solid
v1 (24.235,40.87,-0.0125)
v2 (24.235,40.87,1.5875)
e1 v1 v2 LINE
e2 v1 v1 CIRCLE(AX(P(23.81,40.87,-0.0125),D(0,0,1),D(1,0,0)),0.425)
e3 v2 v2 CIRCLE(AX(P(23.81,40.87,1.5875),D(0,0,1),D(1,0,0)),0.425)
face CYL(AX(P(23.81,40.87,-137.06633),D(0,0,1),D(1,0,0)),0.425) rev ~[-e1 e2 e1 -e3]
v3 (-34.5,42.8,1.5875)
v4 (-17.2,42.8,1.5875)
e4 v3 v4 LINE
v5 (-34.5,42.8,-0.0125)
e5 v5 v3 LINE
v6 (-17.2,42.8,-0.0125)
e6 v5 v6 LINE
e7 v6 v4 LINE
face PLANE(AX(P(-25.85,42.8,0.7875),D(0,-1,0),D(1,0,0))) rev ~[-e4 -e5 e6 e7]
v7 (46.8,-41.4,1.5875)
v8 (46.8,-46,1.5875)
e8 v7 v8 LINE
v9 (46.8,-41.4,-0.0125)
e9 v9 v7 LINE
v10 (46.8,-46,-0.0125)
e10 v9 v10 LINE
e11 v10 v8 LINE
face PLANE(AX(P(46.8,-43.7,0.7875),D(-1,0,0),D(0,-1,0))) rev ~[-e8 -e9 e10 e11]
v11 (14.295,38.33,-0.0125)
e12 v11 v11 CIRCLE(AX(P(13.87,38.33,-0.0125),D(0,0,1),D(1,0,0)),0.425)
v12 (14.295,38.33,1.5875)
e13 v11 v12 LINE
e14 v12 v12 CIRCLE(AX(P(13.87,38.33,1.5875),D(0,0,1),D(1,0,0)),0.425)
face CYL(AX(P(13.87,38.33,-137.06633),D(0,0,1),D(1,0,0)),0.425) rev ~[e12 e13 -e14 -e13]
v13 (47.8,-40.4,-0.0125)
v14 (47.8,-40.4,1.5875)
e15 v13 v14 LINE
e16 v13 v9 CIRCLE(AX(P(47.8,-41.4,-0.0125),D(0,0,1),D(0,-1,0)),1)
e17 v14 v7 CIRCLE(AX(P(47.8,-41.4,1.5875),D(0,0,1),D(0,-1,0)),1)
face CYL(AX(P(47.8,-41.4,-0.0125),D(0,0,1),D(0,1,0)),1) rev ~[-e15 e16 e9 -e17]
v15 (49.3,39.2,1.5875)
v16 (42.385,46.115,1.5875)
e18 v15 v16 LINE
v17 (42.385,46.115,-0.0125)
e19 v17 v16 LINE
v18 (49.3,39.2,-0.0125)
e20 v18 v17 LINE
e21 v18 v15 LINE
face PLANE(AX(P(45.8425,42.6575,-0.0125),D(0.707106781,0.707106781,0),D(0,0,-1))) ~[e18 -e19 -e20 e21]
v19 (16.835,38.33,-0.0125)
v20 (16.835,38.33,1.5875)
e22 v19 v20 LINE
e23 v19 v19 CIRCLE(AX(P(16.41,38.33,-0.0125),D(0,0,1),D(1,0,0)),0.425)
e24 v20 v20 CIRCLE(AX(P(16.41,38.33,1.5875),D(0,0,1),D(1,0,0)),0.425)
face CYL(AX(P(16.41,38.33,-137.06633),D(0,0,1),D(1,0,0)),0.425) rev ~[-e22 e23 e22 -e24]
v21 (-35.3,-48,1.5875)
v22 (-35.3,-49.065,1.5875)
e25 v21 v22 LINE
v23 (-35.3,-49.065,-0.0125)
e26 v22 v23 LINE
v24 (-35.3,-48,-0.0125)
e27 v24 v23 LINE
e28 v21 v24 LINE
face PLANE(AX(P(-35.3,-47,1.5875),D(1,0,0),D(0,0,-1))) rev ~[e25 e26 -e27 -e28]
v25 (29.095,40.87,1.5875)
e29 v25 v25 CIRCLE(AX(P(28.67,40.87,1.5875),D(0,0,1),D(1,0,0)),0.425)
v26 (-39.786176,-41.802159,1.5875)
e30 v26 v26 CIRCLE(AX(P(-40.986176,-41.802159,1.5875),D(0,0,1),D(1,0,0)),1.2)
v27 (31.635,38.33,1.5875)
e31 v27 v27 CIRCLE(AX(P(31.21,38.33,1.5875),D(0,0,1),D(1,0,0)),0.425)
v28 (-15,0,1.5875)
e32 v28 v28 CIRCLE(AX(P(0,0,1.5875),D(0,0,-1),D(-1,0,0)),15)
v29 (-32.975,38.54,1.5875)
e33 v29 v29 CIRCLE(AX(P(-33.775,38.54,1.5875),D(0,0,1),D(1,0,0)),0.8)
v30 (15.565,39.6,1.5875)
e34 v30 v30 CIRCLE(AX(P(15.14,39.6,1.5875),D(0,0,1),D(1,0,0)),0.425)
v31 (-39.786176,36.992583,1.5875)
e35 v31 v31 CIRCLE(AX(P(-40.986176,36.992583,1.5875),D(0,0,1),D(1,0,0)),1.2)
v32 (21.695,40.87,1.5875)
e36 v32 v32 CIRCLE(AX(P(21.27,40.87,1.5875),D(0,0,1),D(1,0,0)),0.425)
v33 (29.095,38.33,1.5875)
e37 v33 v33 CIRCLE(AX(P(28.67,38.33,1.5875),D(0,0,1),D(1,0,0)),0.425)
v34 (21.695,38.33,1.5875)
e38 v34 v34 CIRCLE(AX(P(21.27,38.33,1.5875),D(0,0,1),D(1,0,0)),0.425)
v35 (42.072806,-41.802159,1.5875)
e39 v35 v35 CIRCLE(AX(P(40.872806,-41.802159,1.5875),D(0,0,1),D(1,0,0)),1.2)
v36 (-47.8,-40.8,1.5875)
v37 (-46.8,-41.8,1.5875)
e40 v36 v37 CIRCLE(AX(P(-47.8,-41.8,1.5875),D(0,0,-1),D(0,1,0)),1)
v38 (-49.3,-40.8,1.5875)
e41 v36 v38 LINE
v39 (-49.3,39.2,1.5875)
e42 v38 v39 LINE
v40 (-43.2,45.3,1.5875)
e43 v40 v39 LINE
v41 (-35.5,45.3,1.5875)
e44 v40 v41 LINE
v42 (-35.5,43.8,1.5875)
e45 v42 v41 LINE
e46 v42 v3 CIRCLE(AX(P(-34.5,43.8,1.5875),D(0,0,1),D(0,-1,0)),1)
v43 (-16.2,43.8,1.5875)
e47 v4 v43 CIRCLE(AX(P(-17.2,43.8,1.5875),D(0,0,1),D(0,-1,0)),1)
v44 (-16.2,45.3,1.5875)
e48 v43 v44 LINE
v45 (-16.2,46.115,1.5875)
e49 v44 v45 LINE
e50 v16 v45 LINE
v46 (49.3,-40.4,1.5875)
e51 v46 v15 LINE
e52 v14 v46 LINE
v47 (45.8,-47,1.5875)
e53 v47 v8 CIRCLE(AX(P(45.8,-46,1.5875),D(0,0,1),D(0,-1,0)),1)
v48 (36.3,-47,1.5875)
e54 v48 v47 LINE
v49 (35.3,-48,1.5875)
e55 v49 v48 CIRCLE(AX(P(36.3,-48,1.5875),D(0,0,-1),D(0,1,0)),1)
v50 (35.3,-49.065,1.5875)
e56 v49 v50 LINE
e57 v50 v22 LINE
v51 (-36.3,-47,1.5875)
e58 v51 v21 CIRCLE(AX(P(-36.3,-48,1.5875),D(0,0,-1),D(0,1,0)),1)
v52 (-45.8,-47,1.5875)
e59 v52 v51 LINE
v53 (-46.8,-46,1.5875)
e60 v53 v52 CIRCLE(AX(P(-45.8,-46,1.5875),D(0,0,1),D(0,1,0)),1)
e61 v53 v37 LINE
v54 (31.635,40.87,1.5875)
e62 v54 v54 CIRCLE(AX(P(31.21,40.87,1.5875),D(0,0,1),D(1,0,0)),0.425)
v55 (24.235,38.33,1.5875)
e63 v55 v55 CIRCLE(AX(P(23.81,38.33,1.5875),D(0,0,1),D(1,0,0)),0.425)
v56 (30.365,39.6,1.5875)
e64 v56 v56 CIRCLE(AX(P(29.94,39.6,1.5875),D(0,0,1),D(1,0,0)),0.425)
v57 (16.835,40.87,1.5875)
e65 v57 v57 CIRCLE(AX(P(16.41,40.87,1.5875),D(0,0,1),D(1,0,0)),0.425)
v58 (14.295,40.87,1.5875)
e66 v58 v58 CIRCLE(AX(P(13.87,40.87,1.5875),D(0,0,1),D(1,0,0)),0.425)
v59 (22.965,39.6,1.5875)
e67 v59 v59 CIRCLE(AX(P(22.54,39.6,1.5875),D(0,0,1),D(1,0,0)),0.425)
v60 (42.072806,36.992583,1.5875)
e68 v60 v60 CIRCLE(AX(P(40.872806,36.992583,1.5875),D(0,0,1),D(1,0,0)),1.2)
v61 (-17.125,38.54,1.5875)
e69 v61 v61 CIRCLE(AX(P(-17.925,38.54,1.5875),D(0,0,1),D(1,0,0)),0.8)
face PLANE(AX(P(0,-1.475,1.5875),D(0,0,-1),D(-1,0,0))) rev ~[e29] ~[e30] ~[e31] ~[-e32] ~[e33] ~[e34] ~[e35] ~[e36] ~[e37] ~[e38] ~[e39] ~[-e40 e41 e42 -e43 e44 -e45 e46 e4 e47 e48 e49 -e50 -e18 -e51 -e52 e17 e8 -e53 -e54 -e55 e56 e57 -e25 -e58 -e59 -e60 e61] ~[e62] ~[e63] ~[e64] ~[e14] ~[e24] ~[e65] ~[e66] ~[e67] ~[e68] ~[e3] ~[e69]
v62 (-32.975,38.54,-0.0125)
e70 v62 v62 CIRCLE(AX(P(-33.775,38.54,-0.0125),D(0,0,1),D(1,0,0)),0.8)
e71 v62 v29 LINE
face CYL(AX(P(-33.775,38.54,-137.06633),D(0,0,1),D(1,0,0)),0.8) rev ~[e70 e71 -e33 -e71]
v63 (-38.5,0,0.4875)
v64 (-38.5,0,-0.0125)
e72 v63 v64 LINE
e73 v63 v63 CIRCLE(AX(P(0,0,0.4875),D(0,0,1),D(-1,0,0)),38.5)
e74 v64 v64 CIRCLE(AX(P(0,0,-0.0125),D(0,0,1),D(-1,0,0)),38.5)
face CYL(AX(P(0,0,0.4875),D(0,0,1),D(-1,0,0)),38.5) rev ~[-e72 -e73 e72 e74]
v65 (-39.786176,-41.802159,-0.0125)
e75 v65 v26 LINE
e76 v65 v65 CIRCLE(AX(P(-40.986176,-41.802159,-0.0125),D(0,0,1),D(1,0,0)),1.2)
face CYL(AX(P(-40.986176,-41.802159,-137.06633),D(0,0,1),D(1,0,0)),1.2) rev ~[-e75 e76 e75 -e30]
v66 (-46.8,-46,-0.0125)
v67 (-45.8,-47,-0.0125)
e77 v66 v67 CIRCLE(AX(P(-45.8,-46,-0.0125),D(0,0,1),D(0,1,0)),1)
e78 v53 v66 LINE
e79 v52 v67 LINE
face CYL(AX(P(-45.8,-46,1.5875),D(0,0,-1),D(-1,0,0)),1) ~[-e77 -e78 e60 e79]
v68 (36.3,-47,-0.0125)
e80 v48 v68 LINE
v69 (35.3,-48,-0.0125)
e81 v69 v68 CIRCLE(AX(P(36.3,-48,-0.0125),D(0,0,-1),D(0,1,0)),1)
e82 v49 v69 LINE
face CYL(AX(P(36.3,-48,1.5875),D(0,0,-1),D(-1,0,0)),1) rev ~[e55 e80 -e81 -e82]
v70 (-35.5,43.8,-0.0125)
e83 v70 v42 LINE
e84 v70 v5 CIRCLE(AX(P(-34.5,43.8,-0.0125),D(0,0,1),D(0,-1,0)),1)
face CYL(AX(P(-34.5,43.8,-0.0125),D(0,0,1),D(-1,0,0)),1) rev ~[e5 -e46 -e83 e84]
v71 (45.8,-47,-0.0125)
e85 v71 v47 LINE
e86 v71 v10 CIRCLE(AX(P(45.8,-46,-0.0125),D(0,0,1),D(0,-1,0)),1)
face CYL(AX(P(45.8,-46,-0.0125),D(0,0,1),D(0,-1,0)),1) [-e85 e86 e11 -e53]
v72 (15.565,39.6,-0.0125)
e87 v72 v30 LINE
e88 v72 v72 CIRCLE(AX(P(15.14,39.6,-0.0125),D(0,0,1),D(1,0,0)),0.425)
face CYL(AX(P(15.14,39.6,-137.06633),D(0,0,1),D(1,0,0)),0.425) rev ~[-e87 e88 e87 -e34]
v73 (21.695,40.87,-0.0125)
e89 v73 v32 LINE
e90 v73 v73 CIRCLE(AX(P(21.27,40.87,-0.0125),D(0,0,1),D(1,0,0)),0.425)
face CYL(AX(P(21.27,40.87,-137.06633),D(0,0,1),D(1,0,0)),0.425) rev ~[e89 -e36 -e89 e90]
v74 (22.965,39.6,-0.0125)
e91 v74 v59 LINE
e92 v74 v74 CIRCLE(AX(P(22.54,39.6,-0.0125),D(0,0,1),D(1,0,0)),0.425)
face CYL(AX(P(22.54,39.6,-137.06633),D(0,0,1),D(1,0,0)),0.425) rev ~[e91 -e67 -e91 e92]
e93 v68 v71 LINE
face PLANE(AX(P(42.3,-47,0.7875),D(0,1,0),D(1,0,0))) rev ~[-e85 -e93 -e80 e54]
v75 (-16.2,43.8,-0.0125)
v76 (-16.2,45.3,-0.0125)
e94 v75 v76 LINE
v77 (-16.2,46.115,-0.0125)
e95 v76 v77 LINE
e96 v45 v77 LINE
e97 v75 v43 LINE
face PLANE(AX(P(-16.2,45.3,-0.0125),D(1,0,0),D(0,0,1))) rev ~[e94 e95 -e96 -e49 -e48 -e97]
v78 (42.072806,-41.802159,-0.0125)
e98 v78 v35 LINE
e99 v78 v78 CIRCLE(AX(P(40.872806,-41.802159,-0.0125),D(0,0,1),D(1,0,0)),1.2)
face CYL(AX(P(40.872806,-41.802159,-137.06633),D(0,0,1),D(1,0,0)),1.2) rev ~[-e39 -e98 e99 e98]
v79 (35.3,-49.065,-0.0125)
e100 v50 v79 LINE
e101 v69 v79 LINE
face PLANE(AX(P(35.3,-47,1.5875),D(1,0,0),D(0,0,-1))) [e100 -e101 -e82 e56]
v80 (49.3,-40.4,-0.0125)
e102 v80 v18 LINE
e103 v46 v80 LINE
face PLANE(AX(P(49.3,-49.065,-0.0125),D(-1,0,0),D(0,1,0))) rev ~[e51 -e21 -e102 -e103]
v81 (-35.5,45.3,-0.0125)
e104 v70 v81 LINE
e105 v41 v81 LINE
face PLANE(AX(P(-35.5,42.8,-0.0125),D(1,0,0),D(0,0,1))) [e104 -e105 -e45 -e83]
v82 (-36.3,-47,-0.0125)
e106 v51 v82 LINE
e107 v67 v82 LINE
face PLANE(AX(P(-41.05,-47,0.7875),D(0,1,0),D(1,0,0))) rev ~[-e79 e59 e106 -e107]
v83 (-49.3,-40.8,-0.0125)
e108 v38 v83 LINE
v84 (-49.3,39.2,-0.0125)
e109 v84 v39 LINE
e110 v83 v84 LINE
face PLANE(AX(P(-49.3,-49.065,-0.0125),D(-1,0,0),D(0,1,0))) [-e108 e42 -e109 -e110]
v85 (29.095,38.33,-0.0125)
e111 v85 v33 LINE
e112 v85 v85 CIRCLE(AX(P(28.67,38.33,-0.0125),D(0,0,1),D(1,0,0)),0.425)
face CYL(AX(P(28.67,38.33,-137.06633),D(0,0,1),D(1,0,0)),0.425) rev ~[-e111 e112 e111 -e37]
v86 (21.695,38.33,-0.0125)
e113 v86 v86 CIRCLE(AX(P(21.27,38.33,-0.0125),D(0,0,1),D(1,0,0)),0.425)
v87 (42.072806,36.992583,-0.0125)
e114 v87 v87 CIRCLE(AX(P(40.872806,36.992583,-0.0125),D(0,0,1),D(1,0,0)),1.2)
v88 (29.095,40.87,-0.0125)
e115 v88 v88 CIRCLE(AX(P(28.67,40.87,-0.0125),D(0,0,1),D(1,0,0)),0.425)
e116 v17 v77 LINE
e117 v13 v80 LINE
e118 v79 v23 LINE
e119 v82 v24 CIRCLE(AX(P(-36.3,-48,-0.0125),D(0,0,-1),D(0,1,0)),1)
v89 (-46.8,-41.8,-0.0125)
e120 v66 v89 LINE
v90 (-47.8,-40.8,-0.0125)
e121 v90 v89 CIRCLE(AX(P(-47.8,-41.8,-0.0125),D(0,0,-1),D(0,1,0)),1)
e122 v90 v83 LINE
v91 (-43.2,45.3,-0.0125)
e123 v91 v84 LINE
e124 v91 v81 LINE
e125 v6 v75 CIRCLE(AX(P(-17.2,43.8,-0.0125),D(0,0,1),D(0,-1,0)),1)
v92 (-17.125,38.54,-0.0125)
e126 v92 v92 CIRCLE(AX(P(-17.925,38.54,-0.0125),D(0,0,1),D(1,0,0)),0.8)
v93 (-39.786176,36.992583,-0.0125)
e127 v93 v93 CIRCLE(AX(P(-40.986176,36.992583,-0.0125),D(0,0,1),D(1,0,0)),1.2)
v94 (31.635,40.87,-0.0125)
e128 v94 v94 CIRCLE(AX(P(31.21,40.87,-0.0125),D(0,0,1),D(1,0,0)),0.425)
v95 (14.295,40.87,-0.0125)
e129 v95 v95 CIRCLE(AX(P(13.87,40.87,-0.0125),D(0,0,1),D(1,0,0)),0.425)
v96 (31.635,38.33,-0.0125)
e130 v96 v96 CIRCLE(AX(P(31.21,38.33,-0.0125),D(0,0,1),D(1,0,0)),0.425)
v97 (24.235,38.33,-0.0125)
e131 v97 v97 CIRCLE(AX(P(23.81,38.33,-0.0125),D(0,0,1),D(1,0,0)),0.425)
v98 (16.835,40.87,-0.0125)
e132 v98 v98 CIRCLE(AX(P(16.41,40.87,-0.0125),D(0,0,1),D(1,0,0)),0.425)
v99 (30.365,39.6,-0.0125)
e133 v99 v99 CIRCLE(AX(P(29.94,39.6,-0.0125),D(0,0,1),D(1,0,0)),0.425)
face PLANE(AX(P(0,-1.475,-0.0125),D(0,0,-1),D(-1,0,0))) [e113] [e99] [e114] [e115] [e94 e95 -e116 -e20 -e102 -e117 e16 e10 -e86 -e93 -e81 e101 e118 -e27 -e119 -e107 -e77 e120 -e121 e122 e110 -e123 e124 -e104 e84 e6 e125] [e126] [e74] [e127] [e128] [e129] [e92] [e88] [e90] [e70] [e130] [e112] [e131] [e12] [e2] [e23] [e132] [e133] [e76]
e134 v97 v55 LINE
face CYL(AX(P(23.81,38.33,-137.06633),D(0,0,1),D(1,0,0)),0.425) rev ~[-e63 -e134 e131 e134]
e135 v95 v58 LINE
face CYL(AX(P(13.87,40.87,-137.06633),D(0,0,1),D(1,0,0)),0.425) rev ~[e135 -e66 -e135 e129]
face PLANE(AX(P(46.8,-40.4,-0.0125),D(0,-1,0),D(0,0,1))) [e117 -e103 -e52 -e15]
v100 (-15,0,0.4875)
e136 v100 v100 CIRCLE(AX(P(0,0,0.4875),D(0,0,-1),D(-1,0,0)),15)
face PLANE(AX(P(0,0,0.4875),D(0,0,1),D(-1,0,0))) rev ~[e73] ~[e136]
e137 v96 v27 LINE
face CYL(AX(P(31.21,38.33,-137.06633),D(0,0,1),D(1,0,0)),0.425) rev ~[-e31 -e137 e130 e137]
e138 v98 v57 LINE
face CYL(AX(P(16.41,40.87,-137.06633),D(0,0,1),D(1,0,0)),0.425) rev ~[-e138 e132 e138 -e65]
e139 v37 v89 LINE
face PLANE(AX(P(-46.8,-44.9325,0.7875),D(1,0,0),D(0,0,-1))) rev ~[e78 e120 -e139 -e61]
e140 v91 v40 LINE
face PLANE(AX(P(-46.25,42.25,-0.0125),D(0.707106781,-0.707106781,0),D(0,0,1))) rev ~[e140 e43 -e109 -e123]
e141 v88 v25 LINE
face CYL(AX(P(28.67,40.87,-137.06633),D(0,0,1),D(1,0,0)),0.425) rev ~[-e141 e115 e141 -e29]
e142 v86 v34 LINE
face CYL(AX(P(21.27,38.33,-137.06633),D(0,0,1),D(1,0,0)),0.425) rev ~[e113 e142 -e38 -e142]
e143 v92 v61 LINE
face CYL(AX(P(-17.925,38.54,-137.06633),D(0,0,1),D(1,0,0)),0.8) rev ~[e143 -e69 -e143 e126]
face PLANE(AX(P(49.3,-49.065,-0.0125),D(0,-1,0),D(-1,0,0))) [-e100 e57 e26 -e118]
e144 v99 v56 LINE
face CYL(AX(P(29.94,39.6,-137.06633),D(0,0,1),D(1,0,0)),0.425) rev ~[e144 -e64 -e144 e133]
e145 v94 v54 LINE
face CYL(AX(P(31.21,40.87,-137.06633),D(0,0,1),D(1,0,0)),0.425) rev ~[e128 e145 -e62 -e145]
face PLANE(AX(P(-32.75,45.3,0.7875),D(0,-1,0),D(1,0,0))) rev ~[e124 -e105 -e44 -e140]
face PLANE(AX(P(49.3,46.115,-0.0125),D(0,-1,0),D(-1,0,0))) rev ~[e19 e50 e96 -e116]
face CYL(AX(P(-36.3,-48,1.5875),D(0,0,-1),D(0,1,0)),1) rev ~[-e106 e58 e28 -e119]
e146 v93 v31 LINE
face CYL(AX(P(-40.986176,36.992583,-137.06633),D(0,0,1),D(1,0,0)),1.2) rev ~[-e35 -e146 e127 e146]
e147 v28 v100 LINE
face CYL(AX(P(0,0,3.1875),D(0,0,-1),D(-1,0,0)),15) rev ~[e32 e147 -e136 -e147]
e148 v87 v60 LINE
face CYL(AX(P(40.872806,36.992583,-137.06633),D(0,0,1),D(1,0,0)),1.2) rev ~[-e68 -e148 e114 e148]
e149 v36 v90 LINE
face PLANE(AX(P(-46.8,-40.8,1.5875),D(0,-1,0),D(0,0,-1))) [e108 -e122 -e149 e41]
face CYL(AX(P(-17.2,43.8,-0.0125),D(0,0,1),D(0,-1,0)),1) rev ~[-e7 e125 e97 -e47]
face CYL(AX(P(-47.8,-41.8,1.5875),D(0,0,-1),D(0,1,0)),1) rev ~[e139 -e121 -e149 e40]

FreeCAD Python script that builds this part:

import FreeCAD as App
import Part
import Sketcher
from FreeCAD import Vector
Q = App.Units.Quantity


def edges_at(feature, points):
    """Names of the edges that pass closest to the given points."""
    edges = feature.Shape.Edges
    near = lambda p: min(range(len(edges)), key=lambda i: edges[i].distToShape(Part.Vertex(*p))[0])
    return sorted({f"Edge{near(p) + 1}" for p in points})

doc = App.newDocument("Part")
body = doc.addObject("PartDesign::Body", "Body")

# Sketch on XY plane
sketch1 = body.newObject("Sketcher::SketchObject", "Sketch")
sketch1.AttachmentSupport = (doc.getObject("XY_Plane"), [""])
sketch1.MapMode = "FlatFace"
sketch1.AttachmentOffset = App.Placement(Vector(0, 0, -0.0125), App.Rotation())
sketch1.addGeometry([
    Part.LineSegment(Vector(49, 46, 0), Vector(49, -49, 0)),
    Part.LineSegment(Vector(49, -49, 0), Vector(-49, -49, 0)),
    Part.LineSegment(Vector(-49, -49, 0), Vector(-49, 46, 0)),
    Part.LineSegment(Vector(-49, 46, 0), Vector(49, 46, 0)),
], False)
sketch1.addConstraint([
    Sketcher.Constraint("Coincident", 0, 2, 1, 1),
    Sketcher.Constraint("Coincident", 1, 2, 2, 1),
    Sketcher.Constraint("Coincident", 2, 2, 3, 1),
    Sketcher.Constraint("Coincident", 3, 2, 0, 1),
    Sketcher.Constraint("Vertical", 0),
    Sketcher.Constraint("Horizontal", 1),
    Sketcher.Constraint("Vertical", 2),
    Sketcher.Constraint("Horizontal", 3),
    Sketcher.Constraint("DistanceX", 1, 2, 1, 1, Q("98.6 mm")),
    Sketcher.Constraint("DistanceY", 0, 2, 0, 1, Q("95.18 mm")),
    Sketcher.Constraint("DistanceX", -1, 1, 0, 2, Q("49.3 mm")),
    Sketcher.Constraint("DistanceY", 0, 2, -1, 1, Q("49.065 mm")),
])
pad1 = body.newObject("PartDesign::Pad", "Pad")
pad1.Profile = sketch1
pad1.Length = 1.6

# Sketch on XY plane
sketch2 = body.newObject("Sketcher::SketchObject", "Sketch001")
sketch2.AttachmentSupport = (doc.getObject("XY_Plane"), [""])
sketch2.MapMode = "FlatFace"
sketch2.AttachmentOffset = App.Placement(Vector(0, 0, -0.0125), App.Rotation())
sketch2.addGeometry(Part.Circle(Vector(31.21, 40.87, 0), Vector(0, 0, 1), 0.42), False)
sketch2.addConstraint([
    Sketcher.Constraint("Diameter", 0, Q("0.85 mm")),
    Sketcher.Constraint("DistanceX", -1, 1, 0, 3, Q("31.21 mm")),
    Sketcher.Constraint("DistanceY", -1, 1, 0, 3, Q("40.87 mm")),
])
doc.recompute()
hole = body.newObject("PartDesign::Hole", "Hole")
hole.Profile = sketch2
hole.ThreadType = "None"
hole.Diameter = 0.85
hole.DepthType = "ThroughAll"
hole.Reversed = True

# Sketch on XY plane
sketch3 = body.newObject("Sketcher::SketchObject", "Sketch002")
sketch3.AttachmentSupport = (doc.getObject("XY_Plane"), [""])
sketch3.MapMode = "FlatFace"
sketch3.AttachmentOffset = App.Placement(Vector(0, 0, -0.0125), App.Rotation())
sketch3.addGeometry(Part.Circle(Vector(28.67, 40.87, 0), Vector(0, 0, 1), 0.42), False)
sketch3.addConstraint([
    Sketcher.Constraint("Diameter", 0, Q("0.85 mm")),
    Sketcher.Constraint("DistanceX", -1, 1, 0, 3, Q("28.67 mm")),
    Sketcher.Constraint("DistanceY", -1, 1, 0, 3, Q("40.87 mm")),
])
doc.recompute()
hole2 = body.newObject("PartDesign::Hole", "Hole001")
hole2.Profile = sketch3
hole2.ThreadType = "None"
hole2.Diameter = 0.85
hole2.DepthType = "ThroughAll"
hole2.Reversed = True

# Sketch on XY plane
sketch4 = body.newObject("Sketcher::SketchObject", "Sketch003")
sketch4.AttachmentSupport = (doc.getObject("XY_Plane"), [""])
sketch4.MapMode = "FlatFace"
sketch4.AttachmentOffset = App.Placement(Vector(0, 0, -0.0125), App.Rotation())
sketch4.addGeometry(Part.Circle(Vector(29.94, 39.6, 0), Vector(0, 0, 1), 0.42), False)
sketch4.addConstraint([
    Sketcher.Constraint("Diameter", 0, Q("0.85 mm")),
    Sketcher.Constraint("DistanceY", -1, 1, 0, 3, Q("39.6 mm")),
    Sketcher.Constraint("DistanceX", -1, 1, 0, 3, Q("29.94 mm")),
])
doc.recompute()
hole3 = body.newObject("PartDesign::Hole", "Hole002")
hole3.Profile = sketch4
hole3.ThreadType = "None"
hole3.Diameter = 0.85
hole3.DepthType = "ThroughAll"
hole3.Reversed = True

# Sketch on XY plane
sketch5 = body.newObject("Sketcher::SketchObject", "Sketch004")
sketch5.AttachmentSupport = (doc.getObject("XY_Plane"), [""])
sketch5.MapMode = "FlatFace"
sketch5.AttachmentOffset = App.Placement(Vector(0, 0, -0.0125), App.Rotation())
sketch5.addGeometry(Part.Circle(Vector(31.21, 38.33, 0), Vector(0, 0, 1), 0.42), False)
sketch5.addConstraint([
    Sketcher.Constraint("Diameter", 0, Q("0.85 mm")),
    Sketcher.Constraint("DistanceX", -1, 1, 0, 3, Q("31.21 mm")),
    Sketcher.Constraint("DistanceY", -1, 1, 0, 3, Q("38.33 mm")),
])
doc.recompute()
hole4 = body.newObject("PartDesign::Hole", "Hole003")
hole4.Profile = sketch5
hole4.ThreadType = "None"
hole4.Diameter = 0.85
hole4.DepthType = "ThroughAll"
hole4.Reversed = True

# Sketch on XY plane
sketch6 = body.newObject("Sketcher::SketchObject", "Sketch005")
sketch6.AttachmentSupport = (doc.getObject("XY_Plane"), [""])
sketch6.MapMode = "FlatFace"
sketch6.AttachmentOffset = App.Placement(Vector(0, 0, -0.0125), App.Rotation())
sketch6.addGeometry(Part.Circle(Vector(28.67, 38.33, 0), Vector(0, 0, 1), 0.42), False)
sketch6.addConstraint([
    Sketcher.Constraint("Diameter", 0, Q("0.85 mm")),
    Sketcher.Constraint("DistanceX", -1, 1, 0, 3, Q("28.67 mm")),
    Sketcher.Constraint("DistanceY", -1, 1, 0, 3, Q("38.33 mm")),
])
doc.recompute()
hole5 = body.newObject("PartDesign::Hole", "Hole004")
hole5.Profile = sketch6
hole5.ThreadType = "None"
hole5.Diameter = 0.85
hole5.DepthType = "ThroughAll"
hole5.Reversed = True

# Sketch on XY plane
sketch7 = body.newObject("Sketcher::SketchObject", "Sketch006")
sketch7.AttachmentSupport = (doc.getObject("XY_Plane"), [""])
sketch7.MapMode = "FlatFace"
sketch7.AttachmentOffset = App.Placement(Vector(0, 0, -0.0125), App.Rotation())
sketch7.addGeometry(Part.Circle(Vector(23.81, 40.87, 0), Vector(0, 0, 1), 0.42), False)
sketch7.addConstraint([
    Sketcher.Constraint("Diameter", 0, Q("0.85 mm")),
    Sketcher.Constraint("DistanceX", -1, 1, 0, 3, Q("23.81 mm")),
    Sketcher.Constraint("DistanceY", -1, 1, 0, 3, Q("40.87 mm")),
])
doc.recompute()
hole6 = body.newObject("PartDesign::Hole", "Hole005")
hole6.Profile = sketch7
hole6.ThreadType = "None"
hole6.Diameter = 0.85
hole6.DepthType = "ThroughAll"
hole6.Reversed = True

# Sketch on XY plane
sketch8 = body.newObject("Sketcher::SketchObject", "Sketch007")
sketch8.AttachmentSupport = (doc.getObject("XY_Plane"), [""])
sketch8.MapMode = "FlatFace"
sketch8.AttachmentOffset = App.Placement(Vector(0, 0, -0.0125), App.Rotation())
sketch8.addGeometry(Part.Circle(Vector(21.27, 40.87, 0), Vector(0, 0, 1), 0.42), False)
sketch8.addConstraint([
    Sketcher.Constraint("Diameter", 0, Q("0.85 mm")),
    Sketcher.Constraint("DistanceX", -1, 1, 0, 3, Q("21.27 mm")),
    Sketcher.Constraint("DistanceY", -1, 1, 0, 3, Q("40.87 mm")),
])
doc.recompute()
hole7 = body.newObject("PartDesign::Hole", "Hole006")
hole7.Profile = sketch8
hole7.ThreadType = "None"
hole7.Diameter = 0.85
hole7.DepthType = "ThroughAll"
hole7.Reversed = True

# Sketch on XY plane
sketch9 = body.newObject("Sketcher::SketchObject", "Sketch008")
sketch9.AttachmentSupport = (doc.getObject("XY_Plane"), [""])
sketch9.MapMode = "FlatFace"
sketch9.AttachmentOffset = App.Placement(Vector(0, 0, -0.0125), App.Rotation())
sketch9.addGeometry(Part.Circle(Vector(22.54, 39.6, 0), Vector(0, 0, 1), 0.42), False)
sketch9.addConstraint([
    Sketcher.Constraint("Diameter", 0, Q("0.85 mm")),
    Sketcher.Constraint("DistanceY", -1, 1, 0, 3, Q("39.6 mm")),
    Sketcher.Constraint("DistanceX", -1, 1, 0, 3, Q("22.54 mm")),
])
doc.recompute()
hole8 = body.newObject("PartDesign::Hole", "Hole007")
hole8.Profile = sketch9
hole8.ThreadType = "None"
hole8.Diameter = 0.85
hole8.DepthType = "ThroughAll"
hole8.Reversed = True

# Sketch on XY plane
sketch10 = body.newObject("Sketcher::SketchObject", "Sketch009")
sketch10.AttachmentSupport = (doc.getObject("XY_Plane"), [""])
sketch10.MapMode = "FlatFace"
sketch10.AttachmentOffset = App.Placement(Vector(0, 0, -0.0125), App.Rotation())
sketch10.addGeometry(Part.Circle(Vector(23.81, 38.33, 0), Vector(0, 0, 1), 0.42), False)
sketch10.addConstraint([
    Sketcher.Constraint("Diameter", 0, Q("0.85 mm")),
    Sketcher.Constraint("DistanceX", -1, 1, 0, 3, Q("23.81 mm")),
    Sketcher.Constraint("DistanceY", -1, 1, 0, 3, Q("38.33 mm")),
])
doc.recompute()
hole9 = body.newObject("PartDesign::Hole", "Hole008")
hole9.Profile = sketch10
hole9.ThreadType = "None"
hole9.Diameter = 0.85
hole9.DepthType = "ThroughAll"
hole9.Reversed = True

# Sketch on XY plane
sketch11 = body.newObject("Sketcher::SketchObject", "Sketch010")
sketch11.AttachmentSupport = (doc.getObject("XY_Plane"), [""])
sketch11.MapMode = "FlatFace"
sketch11.AttachmentOffset = App.Placement(Vector(0, 0, -0.0125), App.Rotation())
sketch11.addGeometry(Part.Circle(Vector(21.27, 38.33, 0), Vector(0, 0, 1), 0.42), False)
sketch11.addConstraint([
    Sketcher.Constraint("Diameter", 0, Q("0.85 mm")),
    Sketcher.Constraint("DistanceX", -1, 1, 0, 3, Q("21.27 mm")),
    Sketcher.Constraint("DistanceY", -1, 1, 0, 3, Q("38.33 mm")),
])
doc.recompute()
hole10 = body.newObject("PartDesign::Hole", "Hole009")
hole10.Profile = sketch11
hole10.ThreadType = "None"
hole10.Diameter = 0.85
hole10.DepthType = "ThroughAll"
hole10.Reversed = True

# Sketch on XY plane
sketch12 = body.newObject("Sketcher::SketchObject", "Sketch011")
sketch12.AttachmentSupport = (doc.getObject("XY_Plane"), [""])
sketch12.MapMode = "FlatFace"
sketch12.AttachmentOffset = App.Placement(Vector(0, 0, -0.0125), App.Rotation())
sketch12.addGeometry(Part.Circle(Vector(16.41, 40.87, 0), Vector(0, 0, 1), 0.42), False)
sketch12.addConstraint([
    Sketcher.Constraint("Diameter", 0, Q("0.85 mm")),
    Sketcher.Constraint("DistanceX", -1, 1, 0, 3, Q("16.41 mm")),
    Sketcher.Constraint("DistanceY", -1, 1, 0, 3, Q("40.87 mm")),
])
doc.recompute()
hole11 = body.newObject("PartDesign::Hole", "Hole010")
hole11.Profile = sketch12
hole11.ThreadType = "None"
hole11.Diameter = 0.85
hole11.DepthType = "ThroughAll"
hole11.Reversed = True

# Sketch on XY plane
sketch13 = body.newObject("Sketcher::SketchObject", "Sketch012")
sketch13.AttachmentSupport = (doc.getObject("XY_Plane"), [""])
sketch13.MapMode = "FlatFace"
sketch13.AttachmentOffset = App.Placement(Vector(0, 0, -0.0125), App.Rotation())
sketch13.addGeometry(Part.Circle(Vector(13.87, 40.87, 0), Vector(0, 0, 1), 0.42), False)
sketch13.addConstraint([
    Sketcher.Constraint("Diameter", 0, Q("0.85 mm")),
    Sketcher.Constraint("DistanceX", -1, 1, 0, 3, Q("13.87 mm")),
    Sketcher.Constraint("DistanceY", -1, 1, 0, 3, Q("40.87 mm")),
])
doc.recompute()
hole12 = body.newObject("PartDesign::Hole", "Hole011")
hole12.Profile = sketch13
hole12.ThreadType = "None"
hole12.Diameter = 0.85
hole12.DepthType = "ThroughAll"
hole12.Reversed = True

# Sketch on XY plane
sketch14 = body.newObject("Sketcher::SketchObject", "Sketch013")
sketch14.AttachmentSupport = (doc.getObject("XY_Plane"), [""])
sketch14.MapMode = "FlatFace"
sketch14.AttachmentOffset = App.Placement(Vector(0, 0, -0.0125), App.Rotation())
sketch14.addGeometry(Part.Circle(Vector(15.14, 39.6, 0), Vector(0, 0, 1), 0.42), False)
sketch14.addConstraint([
    Sketcher.Constraint("Diameter", 0, Q("0.85 mm")),
    Sketcher.Constraint("DistanceY", -1, 1, 0, 3, Q("39.6 mm")),
    Sketcher.Constraint("DistanceX", -1, 1, 0, 3, Q("15.14 mm")),
])
doc.recompute()
hole13 = body.newObject("PartDesign::Hole", "Hole012")
hole13.Profile = sketch14
hole13.ThreadType = "None"
hole13.Diameter = 0.85
hole13.DepthType = "ThroughAll"
hole13.Reversed = True

# Sketch on XY plane
sketch15 = body.newObject("Sketcher::SketchObject", "Sketch014")
sketch15.AttachmentSupport = (doc.getObject("XY_Plane"), [""])
sketch15.MapMode = "FlatFace"
sketch15.AttachmentOffset = App.Placement(Vector(0, 0, -0.0125), App.Rotation())
sketch15.addGeometry(Part.Circle(Vector(16.41, 38.33, 0), Vector(0, 0, 1), 0.42), False)
sketch15.addConstraint([
    Sketcher.Constraint("Diameter", 0, Q("0.85 mm")),
    Sketcher.Constraint("DistanceX", -1, 1, 0, 3, Q("16.41 mm")),
    Sketcher.Constraint("DistanceY", -1, 1, 0, 3, Q("38.33 mm")),
])
doc.recompute()
hole14 = body.newObject("PartDesign::Hole", "Hole013")
hole14.Profile = sketch15
hole14.ThreadType = "None"
hole14.Diameter = 0.85
hole14.DepthType = "ThroughAll"
hole14.Reversed = True

# Sketch on XY plane
sketch16 = body.newObject("Sketcher::SketchObject", "Sketch015")
sketch16.AttachmentSupport = (doc.getObject("XY_Plane"), [""])
sketch16.MapMode = "FlatFace"
sketch16.AttachmentOffset = App.Placement(Vector(0, 0, -0.0125), App.Rotation())
sketch16.addGeometry(Part.Circle(Vector(13.87, 38.33, 0), Vector(0, 0, 1), 0.42), False)
sketch16.addConstraint([
    Sketcher.Constraint("Diameter", 0, Q("0.85 mm")),
    Sketcher.Constraint("DistanceX", -1, 1, 0, 3, Q("13.87 mm")),
    Sketcher.Constraint("DistanceY", -1, 1, 0, 3, Q("38.33 mm")),
])
doc.recompute()
hole15 = body.newObject("PartDesign::Hole", "Hole014")
hole15.Profile = sketch16
hole15.ThreadType = "None"
hole15.Diameter = 0.85
hole15.DepthType = "ThroughAll"
hole15.Reversed = True

# Sketch on XY plane
sketch17 = body.newObject("Sketcher::SketchObject", "Sketch016")
sketch17.AttachmentSupport = (doc.getObject("XY_Plane"), [""])
sketch17.MapMode = "FlatFace"
sketch17.AttachmentOffset = App.Placement(Vector(0, 0, -0.0125), App.Rotation())
sketch17.addGeometry(Part.Circle(Vector(-17.9, 38.5, 0), Vector(0, 0, 1), 0.8), False)
sketch17.addConstraint([
    Sketcher.Constraint("Diameter", 0, Q("1.6 mm")),
    Sketcher.Constraint("DistanceY", -1, 1, 0, 3, Q("38.54 mm")),
    Sketcher.Constraint("DistanceX", 0, 3, -1, 1, Q("17.925 mm")),
])
doc.recompute()
hole16 = body.newObject("PartDesign::Hole", "Hole015")
hole16.Profile = sketch17
hole16.ThreadType = "None"
hole16.Diameter = 1.6
hole16.DepthType = "ThroughAll"
hole16.Reversed = True

# Sketch on XY plane
sketch18 = body.newObject("Sketcher::SketchObject", "Sketch017")
sketch18.AttachmentSupport = (doc.getObject("XY_Plane"), [""])
sketch18.MapMode = "FlatFace"
sketch18.AttachmentOffset = App.Placement(Vector(0, 0, -0.0125), App.Rotation())
sketch18.addGeometry(Part.Circle(Vector(-33.8, 38.5, 0), Vector(0, 0, 1), 0.8), False)
sketch18.addConstraint([
    Sketcher.Constraint("Diameter", 0, Q("1.6 mm")),
    Sketcher.Constraint("DistanceY", -1, 1, 0, 3, Q("38.54 mm")),
    Sketcher.Constraint("DistanceX", 0, 3, -1, 1, Q("33.775 mm")),
])
doc.recompute()
hole17 = body.newObject("PartDesign::Hole", "Hole016")
hole17.Profile = sketch18
hole17.ThreadType = "None"
hole17.Diameter = 1.6
hole17.DepthType = "ThroughAll"
hole17.Reversed = True

# Sketch on XY plane
sketch19 = body.newObject("Sketcher::SketchObject", "Sketch018")
sketch19.AttachmentSupport = (doc.getObject("XY_Plane"), [""])
sketch19.MapMode = "FlatFace"
sketch19.AttachmentOffset = App.Placement(Vector(0, 0, -0.0125), App.Rotation())
sketch19.addGeometry(Part.Circle(Vector(-41, 37, 0), Vector(0, 0, 1), 1.2), False)
sketch19.addConstraint([
    Sketcher.Constraint("Diameter", 0, Q("2.4 mm")),
    Sketcher.Constraint("DistanceX", 0, 3, -1, 1, Q("40.986176 mm")),
    Sketcher.Constraint("DistanceY", -1, 1, 0, 3, Q("36.992583 mm")),
])
doc.recompute()
hole18 = body.newObject("PartDesign::Hole", "Hole017")
hole18.Profile = sketch19
hole18.ThreadType = "None"
hole18.Diameter = 2.4
hole18.DepthType = "ThroughAll"
hole18.Reversed = True

# Sketch on XY plane
sketch20 = body.newObject("Sketcher::SketchObject", "Sketch019")
sketch20.AttachmentSupport = (doc.getObject("XY_Plane"), [""])
sketch20.MapMode = "FlatFace"
sketch20.AttachmentOffset = App.Placement(Vector(0, 0, -0.0125), App.Rotation())
sketch20.addGeometry(Part.Circle(Vector(40.9, 37, 0), Vector(0, 0, 1), 1.2), False)
sketch20.addConstraint([
    Sketcher.Constraint("Diameter", 0, Q("2.4 mm")),
    Sketcher.Constraint("DistanceX", -1, 1, 0, 3, Q("40.872806 mm")),
    Sketcher.Constraint("DistanceY", -1, 1, 0, 3, Q("36.992583 mm")),
])
doc.recompute()
hole19 = body.newObject("PartDesign::Hole", "Hole018")
hole19.Profile = sketch20
hole19.ThreadType = "None"
hole19.Diameter = 2.4
hole19.DepthType = "ThroughAll"
hole19.Reversed = True

# Sketch on XY plane
sketch21 = body.newObject("Sketcher::SketchObject", "Sketch020")
sketch21.AttachmentSupport = (doc.getObject("XY_Plane"), [""])
sketch21.MapMode = "FlatFace"
sketch21.AttachmentOffset = App.Placement(Vector(0, 0, -0.0125), App.Rotation())
sketch21.addGeometry(Part.Circle(Vector(40.9, -41.8, 0), Vector(0, 0, 1), 1.2), False)
sketch21.addConstraint([
    Sketcher.Constraint("Diameter", 0, Q("2.4 mm")),
    Sketcher.Constraint("DistanceY", 0, 3, -1, 1, Q("41.802159 mm")),
    Sketcher.Constraint("DistanceX", -1, 1, 0, 3, Q("40.872806 mm")),
])
doc.recompute()
hole20 = body.newObject("PartDesign::Hole", "Hole019")
hole20.Profile = sketch21
hole20.ThreadType = "None"
hole20.Diameter = 2.4
hole20.DepthType = "ThroughAll"
hole20.Reversed = True

# Sketch on XY plane
sketch22 = body.newObject("Sketcher::SketchObject", "Sketch021")
sketch22.AttachmentSupport = (doc.getObject("XY_Plane"), [""])
sketch22.MapMode = "FlatFace"
sketch22.AttachmentOffset = App.Placement(Vector(0, 0, -0.0125), App.Rotation())
sketch22.addGeometry(Part.Circle(Vector(-41, -41.8, 0), Vector(0, 0, 1), 1.2), False)
sketch22.addConstraint([
    Sketcher.Constraint("Diameter", 0, Q("2.4 mm")),
    Sketcher.Constraint("DistanceY", 0, 3, -1, 1, Q("41.802159 mm")),
    Sketcher.Constraint("DistanceX", 0, 3, -1, 1, Q("40.986176 mm")),
])
doc.recompute()
hole21 = body.newObject("PartDesign::Hole", "Hole020")
hole21.Profile = sketch22
hole21.ThreadType = "None"
hole21.Diameter = 2.4
hole21.DepthType = "ThroughAll"
hole21.Reversed = True

# Sketch on XY plane
sketch23 = body.newObject("Sketcher::SketchObject", "Sketch022")
sketch23.AttachmentSupport = (doc.getObject("XY_Plane"), [""])
sketch23.MapMode = "FlatFace"
sketch23.AttachmentOffset = App.Placement(Vector(0, 0, 0.4875), App.Rotation())
sketch23.addGeometry(Part.Circle(Vector(0, 0, 0), Vector(0, 0, 1), 38), False)
sketch23.addConstraint([
    Sketcher.Constraint("Coincident", 0, 3, -1, 1),
    Sketcher.Constraint("Diameter", 0, Q("77 mm")),
])
pocket1 = body.newObject("PartDesign::Pocket", "Pocket")
pocket1.Profile = sketch23
pocket1.Type = "UpToFirst"

# Sketch on XY plane
sketch24 = body.newObject("Sketcher::SketchObject", "Sketch023")
sketch24.AttachmentSupport = (doc.getObject("XY_Plane"), [""])
sketch24.MapMode = "FlatFace"
sketch24.AttachmentOffset = App.Placement(Vector(0, 0, 1.5875), App.Rotation())
sketch24.addGeometry(Part.Circle(Vector(0, 0, 0), Vector(0, 0, 1), 15), False)
sketch24.addConstraint([
    Sketcher.Constraint("Coincident", 0, 3, -1, 1),
    Sketcher.Constraint("Diameter", 0, Q("30 mm")),
])
doc.recompute()
hole22 = body.newObject("PartDesign::Hole", "Hole021")
hole22.Profile = sketch24
hole22.ThreadType = "None"
hole22.Diameter = 30
hole22.DepthType = "Dimension"
hole22.Depth = 1.6
hole22.DrillPoint = "Flat"

# Sketch on XZ plane
sketch25 = body.newObject("Sketcher::SketchObject", "Sketch024")
sketch25.AttachmentSupport = (doc.getObject("XZ_Plane"), [""])
sketch25.MapMode = "FlatFace"
sketch25.AttachmentOffset = App.Placement(Vector(0, 0, 47), App.Rotation())
sketch25.addGeometry([
    Part.LineSegment(Vector(35.3, 0, 0), Vector(35.3, 1.6, 0)),
    Part.LineSegment(Vector(35.3, 1.6, 0), Vector(49.3, 1.6, 0)),
    Part.LineSegment(Vector(49.3, 1.6, 0), Vector(49.3, 0, 0)),
    Part.LineSegment(Vector(49.3, 0, 0), Vector(35.3, 0, 0)),
], False)
sketch25.addConstraint([
    Sketcher.Constraint("Coincident", 0, 2, 1, 1),
    Sketcher.Constraint("Coincident", 1, 2, 2, 1),
    Sketcher.Constraint("Coincident", 2, 2, 3, 1),
    Sketcher.Constraint("Coincident", 3, 2, 0, 1),
    Sketcher.Constraint("Vertical", 0),
    Sketcher.Constraint("Horizontal", 1),
    Sketcher.Constraint("Vertical", 2),
    Sketcher.Constraint("Horizontal", 3),
    Sketcher.Constraint("DistanceX", 1, 1, 1, 2, Q("14 mm")),
    Sketcher.Constraint("DistanceY", 0, 1, 0, 2, Q("1.6 mm")),
    Sketcher.Constraint("DistanceX", -1, 1, 0, 2, Q("35.3 mm")),
    Sketcher.Constraint("DistanceY", -1, 1, 0, 2, Q("1.5875 mm")),
])
pocket2 = body.newObject("PartDesign::Pocket", "Pocket001")
pocket2.Profile = sketch25
pocket2.Type = "UpToFirst"
pocket2.Reversed = True

# Sketch on YZ plane
sketch26 = body.newObject("Sketcher::SketchObject", "Sketch025")
sketch26.AttachmentSupport = (doc.getObject("YZ_Plane"), [""])
sketch26.MapMode = "FlatFace"
sketch26.AttachmentOffset = App.Placement(Vector(0, 0, 46.8), App.Rotation())
sketch26.addGeometry([
    Part.LineSegment(Vector(-40.4, 1.6, 0), Vector(-40.4, 0, 0)),
    Part.LineSegment(Vector(-40.4, 0, 0), Vector(-47, 0, 0)),
    Part.LineSegment(Vector(-47, 0, 0), Vector(-47, 1.6, 0)),
    Part.LineSegment(Vector(-47, 1.6, 0), Vector(-40.4, 1.6, 0)),
], False)
sketch26.addConstraint([
    Sketcher.Constraint("Coincident", 0, 2, 1, 1),
    Sketcher.Constraint("Coincident", 1, 2, 2, 1),
    Sketcher.Constraint("Coincident", 2, 2, 3, 1),
    Sketcher.Constraint("Coincident", 3, 2, 0, 1),
    Sketcher.Constraint("Vertical", 0),
    Sketcher.Constraint("Horizontal", 1),
    Sketcher.Constraint("Vertical", 2),
    Sketcher.Constraint("Horizontal", 3),
    Sketcher.Constraint("DistanceX", 1, 2, 1, 1, Q("6.6 mm")),
    Sketcher.Constraint("DistanceY", 0, 2, 0, 1, Q("1.6 mm")),
    Sketcher.Constraint("DistanceX", 1, 2, -1, 1, Q("47 mm")),
    Sketcher.Constraint("DistanceY", 0, 2, -1, 1, Q("0.0125 mm")),
])
pocket3 = body.newObject("PartDesign::Pocket", "Pocket002")
pocket3.Profile = sketch26
pocket3.Type = "UpToFirst"
pocket3.Reversed = True

# Sketch on YZ plane
sketch27 = body.newObject("Sketcher::SketchObject", "Sketch026")
sketch27.AttachmentSupport = (doc.getObject("YZ_Plane"), [""])
sketch27.MapMode = "FlatFace"
sketch27.AttachmentOffset = App.Placement(Vector(0, 0, -46.8), App.Rotation())
sketch27.addGeometry([
    Part.LineSegment(Vector(-40.8, 1.6, 0), Vector(-49.1, 1.6, 0)),
    Part.LineSegment(Vector(-49.1, 1.6, 0), Vector(-49.1, 0, 0)),
    Part.LineSegment(Vector(-49.1, 0, 0), Vector(-40.8, 0, 0)),
    Part.LineSegment(Vector(-40.8, 0, 0), Vector(-40.8, 1.6, 0)),
], False)
sketch27.addConstraint([
    Sketcher.Constraint("Coincident", 0, 2, 1, 1),
    Sketcher.Constraint("Coincident", 1, 2, 2, 1),
    Sketcher.Constraint("Coincident", 2, 2, 3, 1),
    Sketcher.Constraint("Coincident", 3, 2, 0, 1),
    Sketcher.Constraint("Horizontal", 0),
    Sketcher.Constraint("Vertical", 1),
    Sketcher.Constraint("Horizontal", 2),
    Sketcher.Constraint("Vertical", 3),
    Sketcher.Constraint("DistanceY", 1, 2, 1, 1, Q("1.6 mm")),
    Sketcher.Constraint("DistanceX", 2, 2, -1, 1, Q("40.8 mm")),
    Sketcher.Constraint("DistanceX", 0, 2, 0, 1, Q("8.265 mm")),
    Sketcher.Constraint("DistanceY", -1, 1, 0, 2, Q("1.5875 mm")),
])
pocket4 = body.newObject("PartDesign::Pocket", "Pocket003")
pocket4.Profile = sketch27
pocket4.Type = "UpToFirst"

# Sketch on XZ plane
sketch28 = body.newObject("Sketcher::SketchObject", "Sketch027")
sketch28.AttachmentSupport = (doc.getObject("XZ_Plane"), [""])
sketch28.MapMode = "FlatFace"
sketch28.AttachmentOffset = App.Placement(Vector(0, 0, 47), App.Rotation())
sketch28.addGeometry([
    Part.LineSegment(Vector(-46.8, 0, 0), Vector(-46.8, 1.6, 0)),
    Part.LineSegment(Vector(-46.8, 1.6, 0), Vector(-35.3, 1.6, 0)),
    Part.LineSegment(Vector(-35.3, 1.6, 0), Vector(-35.3, 0, 0)),
    Part.LineSegment(Vector(-35.3, 0, 0), Vector(-46.8, 0, 0)),
], False)
sketch28.addConstraint([
    Sketcher.Constraint("Coincident", 0, 2, 1, 1),
    Sketcher.Constraint("Coincident", 1, 2, 2, 1),
    Sketcher.Constraint("Coincident", 2, 2, 3, 1),
    Sketcher.Constraint("Coincident", 3, 2, 0, 1),
    Sketcher.Constraint("Vertical", 0),
    Sketcher.Constraint("Horizontal", 1),
    Sketcher.Constraint("Vertical", 2),
    Sketcher.Constraint("Horizontal", 3),
    Sketcher.Constraint("DistanceX", 1, 1, 1, 2, Q("11.5 mm")),
    Sketcher.Constraint("DistanceY", 0, 1, 0, 2, Q("1.6 mm")),
    Sketcher.Constraint("DistanceX", 0, 2, -1, 1, Q("46.8 mm")),
    Sketcher.Constraint("DistanceY", -1, 1, 0, 2, Q("1.5875 mm")),
])
pocket5 = body.newObject("PartDesign::Pocket", "Pocket004")
pocket5.Profile = sketch28
pocket5.Type = "UpToFirst"
pocket5.Reversed = True

# Sketch on XZ plane
sketch29 = body.newObject("Sketcher::SketchObject", "Sketch028")
sketch29.AttachmentSupport = (doc.getObject("XZ_Plane"), [""])
sketch29.MapMode = "FlatFace"
sketch29.AttachmentOffset = App.Placement(Vector(0, 0, -45.3), App.Rotation())
sketch29.addGeometry([
    Part.LineSegment(Vector(-49.3, 1.6, 0), Vector(-49.3, 0, 0)),
    Part.LineSegment(Vector(-49.3, 0, 0), Vector(-16.2, 0, 0)),
    Part.LineSegment(Vector(-16.2, 0, 0), Vector(-16.2, 1.6, 0)),
    Part.LineSegment(Vector(-16.2, 1.6, 0), Vector(-49.3, 1.6, 0)),
], False)
sketch29.addConstraint([
    Sketcher.Constraint("Coincident", 0, 2, 1, 1),
    Sketcher.Constraint("Coincident", 1, 2, 2, 1),
    Sketcher.Constraint("Coincident", 2, 2, 3, 1),
    Sketcher.Constraint("Coincident", 3, 2, 0, 1),
    Sketcher.Constraint("Vertical", 0),
    Sketcher.Constraint("Horizontal", 1),
    Sketcher.Constraint("Vertical", 2),
    Sketcher.Constraint("Horizontal", 3),
    Sketcher.Constraint("DistanceX", 1, 1, 1, 2, Q("33.1 mm")),
    Sketcher.Constraint("DistanceY", 0, 2, 0, 1, Q("1.6 mm")),
    Sketcher.Constraint("DistanceX", 0, 2, -1, 1, Q("49.3 mm")),
    Sketcher.Constraint("DistanceY", 0, 2, -1, 1, Q("0.0125 mm")),
])
pocket6 = body.newObject("PartDesign::Pocket", "Pocket005")
pocket6.Profile = sketch29
pocket6.Type = "UpToFirst"

# Sketch on XZ plane
sketch30 = body.newObject("Sketcher::SketchObject", "Sketch029")
sketch30.AttachmentSupport = (doc.getObject("XZ_Plane"), [""])
sketch30.MapMode = "FlatFace"
sketch30.AttachmentOffset = App.Placement(Vector(0, 0, -42.8), App.Rotation())
sketch30.addGeometry([
    Part.LineSegment(Vector(-35.5, 1.6, 0), Vector(-35.5, 0, 0)),
    Part.LineSegment(Vector(-35.5, 0, 0), Vector(-16.2, 0, 0)),
    Part.LineSegment(Vector(-16.2, 0, 0), Vector(-16.2, 1.6, 0)),
    Part.LineSegment(Vector(-16.2, 1.6, 0), Vector(-35.5, 1.6, 0)),
], False)
sketch30.addConstraint([
    Sketcher.Constraint("Coincident", 0, 2, 1, 1),
    Sketcher.Constraint("Coincident", 1, 2, 2, 1),
    Sketcher.Constraint("Coincident", 2, 2, 3, 1),
    Sketcher.Constraint("Coincident", 3, 2, 0, 1),
    Sketcher.Constraint("Vertical", 0),
    Sketcher.Constraint("Horizontal", 1),
    Sketcher.Constraint("Vertical", 2),
    Sketcher.Constraint("Horizontal", 3),
    Sketcher.Constraint("DistanceX", 1, 1, 1, 2, Q("19.3 mm")),
    Sketcher.Constraint("DistanceY", 0, 2, 0, 1, Q("1.6 mm")),
    Sketcher.Constraint("DistanceX", 0, 2, -1, 1, Q("35.5 mm")),
    Sketcher.Constraint("DistanceY", 0, 2, -1, 1, Q("0.0125 mm")),
])
pocket7 = body.newObject("PartDesign::Pocket", "Pocket006")
pocket7.Profile = sketch30
pocket7.Type = "UpToFirst"
doc.recompute()

chamfer = body.newObject("PartDesign::Chamfer", "Chamfer")
chamfer.Base = (pocket7, edges_at(pocket7, [(49.3, 46.115, 0.787)]))
chamfer.Size = 6.915
doc.recompute()

chamfer2 = body.newObject("PartDesign::Chamfer", "Chamfer001")
chamfer2.Base = (chamfer, edges_at(chamfer, [(-49.3, 45.3, 0.787)]))
chamfer2.Size = 6.1
doc.recompute()

fillet = body.newObject("PartDesign::Fillet", "Fillet")
fillet.Base = (chamfer2, edges_at(chamfer2, [
    (35.3, -47, 0.787),
    (46.8, -47, 0.787),
    (46.8, -40.4, 0.787),
    (-46.8, -40.8, 0.787),
    (-35.3, -47, 0.787),
    (-46.8, -47, 0.787),
    (-35.5, 42.8, 0.787),
    (-16.2, 42.8, 0.787),
]))
fillet.Radius = 1

doc.recompute()
